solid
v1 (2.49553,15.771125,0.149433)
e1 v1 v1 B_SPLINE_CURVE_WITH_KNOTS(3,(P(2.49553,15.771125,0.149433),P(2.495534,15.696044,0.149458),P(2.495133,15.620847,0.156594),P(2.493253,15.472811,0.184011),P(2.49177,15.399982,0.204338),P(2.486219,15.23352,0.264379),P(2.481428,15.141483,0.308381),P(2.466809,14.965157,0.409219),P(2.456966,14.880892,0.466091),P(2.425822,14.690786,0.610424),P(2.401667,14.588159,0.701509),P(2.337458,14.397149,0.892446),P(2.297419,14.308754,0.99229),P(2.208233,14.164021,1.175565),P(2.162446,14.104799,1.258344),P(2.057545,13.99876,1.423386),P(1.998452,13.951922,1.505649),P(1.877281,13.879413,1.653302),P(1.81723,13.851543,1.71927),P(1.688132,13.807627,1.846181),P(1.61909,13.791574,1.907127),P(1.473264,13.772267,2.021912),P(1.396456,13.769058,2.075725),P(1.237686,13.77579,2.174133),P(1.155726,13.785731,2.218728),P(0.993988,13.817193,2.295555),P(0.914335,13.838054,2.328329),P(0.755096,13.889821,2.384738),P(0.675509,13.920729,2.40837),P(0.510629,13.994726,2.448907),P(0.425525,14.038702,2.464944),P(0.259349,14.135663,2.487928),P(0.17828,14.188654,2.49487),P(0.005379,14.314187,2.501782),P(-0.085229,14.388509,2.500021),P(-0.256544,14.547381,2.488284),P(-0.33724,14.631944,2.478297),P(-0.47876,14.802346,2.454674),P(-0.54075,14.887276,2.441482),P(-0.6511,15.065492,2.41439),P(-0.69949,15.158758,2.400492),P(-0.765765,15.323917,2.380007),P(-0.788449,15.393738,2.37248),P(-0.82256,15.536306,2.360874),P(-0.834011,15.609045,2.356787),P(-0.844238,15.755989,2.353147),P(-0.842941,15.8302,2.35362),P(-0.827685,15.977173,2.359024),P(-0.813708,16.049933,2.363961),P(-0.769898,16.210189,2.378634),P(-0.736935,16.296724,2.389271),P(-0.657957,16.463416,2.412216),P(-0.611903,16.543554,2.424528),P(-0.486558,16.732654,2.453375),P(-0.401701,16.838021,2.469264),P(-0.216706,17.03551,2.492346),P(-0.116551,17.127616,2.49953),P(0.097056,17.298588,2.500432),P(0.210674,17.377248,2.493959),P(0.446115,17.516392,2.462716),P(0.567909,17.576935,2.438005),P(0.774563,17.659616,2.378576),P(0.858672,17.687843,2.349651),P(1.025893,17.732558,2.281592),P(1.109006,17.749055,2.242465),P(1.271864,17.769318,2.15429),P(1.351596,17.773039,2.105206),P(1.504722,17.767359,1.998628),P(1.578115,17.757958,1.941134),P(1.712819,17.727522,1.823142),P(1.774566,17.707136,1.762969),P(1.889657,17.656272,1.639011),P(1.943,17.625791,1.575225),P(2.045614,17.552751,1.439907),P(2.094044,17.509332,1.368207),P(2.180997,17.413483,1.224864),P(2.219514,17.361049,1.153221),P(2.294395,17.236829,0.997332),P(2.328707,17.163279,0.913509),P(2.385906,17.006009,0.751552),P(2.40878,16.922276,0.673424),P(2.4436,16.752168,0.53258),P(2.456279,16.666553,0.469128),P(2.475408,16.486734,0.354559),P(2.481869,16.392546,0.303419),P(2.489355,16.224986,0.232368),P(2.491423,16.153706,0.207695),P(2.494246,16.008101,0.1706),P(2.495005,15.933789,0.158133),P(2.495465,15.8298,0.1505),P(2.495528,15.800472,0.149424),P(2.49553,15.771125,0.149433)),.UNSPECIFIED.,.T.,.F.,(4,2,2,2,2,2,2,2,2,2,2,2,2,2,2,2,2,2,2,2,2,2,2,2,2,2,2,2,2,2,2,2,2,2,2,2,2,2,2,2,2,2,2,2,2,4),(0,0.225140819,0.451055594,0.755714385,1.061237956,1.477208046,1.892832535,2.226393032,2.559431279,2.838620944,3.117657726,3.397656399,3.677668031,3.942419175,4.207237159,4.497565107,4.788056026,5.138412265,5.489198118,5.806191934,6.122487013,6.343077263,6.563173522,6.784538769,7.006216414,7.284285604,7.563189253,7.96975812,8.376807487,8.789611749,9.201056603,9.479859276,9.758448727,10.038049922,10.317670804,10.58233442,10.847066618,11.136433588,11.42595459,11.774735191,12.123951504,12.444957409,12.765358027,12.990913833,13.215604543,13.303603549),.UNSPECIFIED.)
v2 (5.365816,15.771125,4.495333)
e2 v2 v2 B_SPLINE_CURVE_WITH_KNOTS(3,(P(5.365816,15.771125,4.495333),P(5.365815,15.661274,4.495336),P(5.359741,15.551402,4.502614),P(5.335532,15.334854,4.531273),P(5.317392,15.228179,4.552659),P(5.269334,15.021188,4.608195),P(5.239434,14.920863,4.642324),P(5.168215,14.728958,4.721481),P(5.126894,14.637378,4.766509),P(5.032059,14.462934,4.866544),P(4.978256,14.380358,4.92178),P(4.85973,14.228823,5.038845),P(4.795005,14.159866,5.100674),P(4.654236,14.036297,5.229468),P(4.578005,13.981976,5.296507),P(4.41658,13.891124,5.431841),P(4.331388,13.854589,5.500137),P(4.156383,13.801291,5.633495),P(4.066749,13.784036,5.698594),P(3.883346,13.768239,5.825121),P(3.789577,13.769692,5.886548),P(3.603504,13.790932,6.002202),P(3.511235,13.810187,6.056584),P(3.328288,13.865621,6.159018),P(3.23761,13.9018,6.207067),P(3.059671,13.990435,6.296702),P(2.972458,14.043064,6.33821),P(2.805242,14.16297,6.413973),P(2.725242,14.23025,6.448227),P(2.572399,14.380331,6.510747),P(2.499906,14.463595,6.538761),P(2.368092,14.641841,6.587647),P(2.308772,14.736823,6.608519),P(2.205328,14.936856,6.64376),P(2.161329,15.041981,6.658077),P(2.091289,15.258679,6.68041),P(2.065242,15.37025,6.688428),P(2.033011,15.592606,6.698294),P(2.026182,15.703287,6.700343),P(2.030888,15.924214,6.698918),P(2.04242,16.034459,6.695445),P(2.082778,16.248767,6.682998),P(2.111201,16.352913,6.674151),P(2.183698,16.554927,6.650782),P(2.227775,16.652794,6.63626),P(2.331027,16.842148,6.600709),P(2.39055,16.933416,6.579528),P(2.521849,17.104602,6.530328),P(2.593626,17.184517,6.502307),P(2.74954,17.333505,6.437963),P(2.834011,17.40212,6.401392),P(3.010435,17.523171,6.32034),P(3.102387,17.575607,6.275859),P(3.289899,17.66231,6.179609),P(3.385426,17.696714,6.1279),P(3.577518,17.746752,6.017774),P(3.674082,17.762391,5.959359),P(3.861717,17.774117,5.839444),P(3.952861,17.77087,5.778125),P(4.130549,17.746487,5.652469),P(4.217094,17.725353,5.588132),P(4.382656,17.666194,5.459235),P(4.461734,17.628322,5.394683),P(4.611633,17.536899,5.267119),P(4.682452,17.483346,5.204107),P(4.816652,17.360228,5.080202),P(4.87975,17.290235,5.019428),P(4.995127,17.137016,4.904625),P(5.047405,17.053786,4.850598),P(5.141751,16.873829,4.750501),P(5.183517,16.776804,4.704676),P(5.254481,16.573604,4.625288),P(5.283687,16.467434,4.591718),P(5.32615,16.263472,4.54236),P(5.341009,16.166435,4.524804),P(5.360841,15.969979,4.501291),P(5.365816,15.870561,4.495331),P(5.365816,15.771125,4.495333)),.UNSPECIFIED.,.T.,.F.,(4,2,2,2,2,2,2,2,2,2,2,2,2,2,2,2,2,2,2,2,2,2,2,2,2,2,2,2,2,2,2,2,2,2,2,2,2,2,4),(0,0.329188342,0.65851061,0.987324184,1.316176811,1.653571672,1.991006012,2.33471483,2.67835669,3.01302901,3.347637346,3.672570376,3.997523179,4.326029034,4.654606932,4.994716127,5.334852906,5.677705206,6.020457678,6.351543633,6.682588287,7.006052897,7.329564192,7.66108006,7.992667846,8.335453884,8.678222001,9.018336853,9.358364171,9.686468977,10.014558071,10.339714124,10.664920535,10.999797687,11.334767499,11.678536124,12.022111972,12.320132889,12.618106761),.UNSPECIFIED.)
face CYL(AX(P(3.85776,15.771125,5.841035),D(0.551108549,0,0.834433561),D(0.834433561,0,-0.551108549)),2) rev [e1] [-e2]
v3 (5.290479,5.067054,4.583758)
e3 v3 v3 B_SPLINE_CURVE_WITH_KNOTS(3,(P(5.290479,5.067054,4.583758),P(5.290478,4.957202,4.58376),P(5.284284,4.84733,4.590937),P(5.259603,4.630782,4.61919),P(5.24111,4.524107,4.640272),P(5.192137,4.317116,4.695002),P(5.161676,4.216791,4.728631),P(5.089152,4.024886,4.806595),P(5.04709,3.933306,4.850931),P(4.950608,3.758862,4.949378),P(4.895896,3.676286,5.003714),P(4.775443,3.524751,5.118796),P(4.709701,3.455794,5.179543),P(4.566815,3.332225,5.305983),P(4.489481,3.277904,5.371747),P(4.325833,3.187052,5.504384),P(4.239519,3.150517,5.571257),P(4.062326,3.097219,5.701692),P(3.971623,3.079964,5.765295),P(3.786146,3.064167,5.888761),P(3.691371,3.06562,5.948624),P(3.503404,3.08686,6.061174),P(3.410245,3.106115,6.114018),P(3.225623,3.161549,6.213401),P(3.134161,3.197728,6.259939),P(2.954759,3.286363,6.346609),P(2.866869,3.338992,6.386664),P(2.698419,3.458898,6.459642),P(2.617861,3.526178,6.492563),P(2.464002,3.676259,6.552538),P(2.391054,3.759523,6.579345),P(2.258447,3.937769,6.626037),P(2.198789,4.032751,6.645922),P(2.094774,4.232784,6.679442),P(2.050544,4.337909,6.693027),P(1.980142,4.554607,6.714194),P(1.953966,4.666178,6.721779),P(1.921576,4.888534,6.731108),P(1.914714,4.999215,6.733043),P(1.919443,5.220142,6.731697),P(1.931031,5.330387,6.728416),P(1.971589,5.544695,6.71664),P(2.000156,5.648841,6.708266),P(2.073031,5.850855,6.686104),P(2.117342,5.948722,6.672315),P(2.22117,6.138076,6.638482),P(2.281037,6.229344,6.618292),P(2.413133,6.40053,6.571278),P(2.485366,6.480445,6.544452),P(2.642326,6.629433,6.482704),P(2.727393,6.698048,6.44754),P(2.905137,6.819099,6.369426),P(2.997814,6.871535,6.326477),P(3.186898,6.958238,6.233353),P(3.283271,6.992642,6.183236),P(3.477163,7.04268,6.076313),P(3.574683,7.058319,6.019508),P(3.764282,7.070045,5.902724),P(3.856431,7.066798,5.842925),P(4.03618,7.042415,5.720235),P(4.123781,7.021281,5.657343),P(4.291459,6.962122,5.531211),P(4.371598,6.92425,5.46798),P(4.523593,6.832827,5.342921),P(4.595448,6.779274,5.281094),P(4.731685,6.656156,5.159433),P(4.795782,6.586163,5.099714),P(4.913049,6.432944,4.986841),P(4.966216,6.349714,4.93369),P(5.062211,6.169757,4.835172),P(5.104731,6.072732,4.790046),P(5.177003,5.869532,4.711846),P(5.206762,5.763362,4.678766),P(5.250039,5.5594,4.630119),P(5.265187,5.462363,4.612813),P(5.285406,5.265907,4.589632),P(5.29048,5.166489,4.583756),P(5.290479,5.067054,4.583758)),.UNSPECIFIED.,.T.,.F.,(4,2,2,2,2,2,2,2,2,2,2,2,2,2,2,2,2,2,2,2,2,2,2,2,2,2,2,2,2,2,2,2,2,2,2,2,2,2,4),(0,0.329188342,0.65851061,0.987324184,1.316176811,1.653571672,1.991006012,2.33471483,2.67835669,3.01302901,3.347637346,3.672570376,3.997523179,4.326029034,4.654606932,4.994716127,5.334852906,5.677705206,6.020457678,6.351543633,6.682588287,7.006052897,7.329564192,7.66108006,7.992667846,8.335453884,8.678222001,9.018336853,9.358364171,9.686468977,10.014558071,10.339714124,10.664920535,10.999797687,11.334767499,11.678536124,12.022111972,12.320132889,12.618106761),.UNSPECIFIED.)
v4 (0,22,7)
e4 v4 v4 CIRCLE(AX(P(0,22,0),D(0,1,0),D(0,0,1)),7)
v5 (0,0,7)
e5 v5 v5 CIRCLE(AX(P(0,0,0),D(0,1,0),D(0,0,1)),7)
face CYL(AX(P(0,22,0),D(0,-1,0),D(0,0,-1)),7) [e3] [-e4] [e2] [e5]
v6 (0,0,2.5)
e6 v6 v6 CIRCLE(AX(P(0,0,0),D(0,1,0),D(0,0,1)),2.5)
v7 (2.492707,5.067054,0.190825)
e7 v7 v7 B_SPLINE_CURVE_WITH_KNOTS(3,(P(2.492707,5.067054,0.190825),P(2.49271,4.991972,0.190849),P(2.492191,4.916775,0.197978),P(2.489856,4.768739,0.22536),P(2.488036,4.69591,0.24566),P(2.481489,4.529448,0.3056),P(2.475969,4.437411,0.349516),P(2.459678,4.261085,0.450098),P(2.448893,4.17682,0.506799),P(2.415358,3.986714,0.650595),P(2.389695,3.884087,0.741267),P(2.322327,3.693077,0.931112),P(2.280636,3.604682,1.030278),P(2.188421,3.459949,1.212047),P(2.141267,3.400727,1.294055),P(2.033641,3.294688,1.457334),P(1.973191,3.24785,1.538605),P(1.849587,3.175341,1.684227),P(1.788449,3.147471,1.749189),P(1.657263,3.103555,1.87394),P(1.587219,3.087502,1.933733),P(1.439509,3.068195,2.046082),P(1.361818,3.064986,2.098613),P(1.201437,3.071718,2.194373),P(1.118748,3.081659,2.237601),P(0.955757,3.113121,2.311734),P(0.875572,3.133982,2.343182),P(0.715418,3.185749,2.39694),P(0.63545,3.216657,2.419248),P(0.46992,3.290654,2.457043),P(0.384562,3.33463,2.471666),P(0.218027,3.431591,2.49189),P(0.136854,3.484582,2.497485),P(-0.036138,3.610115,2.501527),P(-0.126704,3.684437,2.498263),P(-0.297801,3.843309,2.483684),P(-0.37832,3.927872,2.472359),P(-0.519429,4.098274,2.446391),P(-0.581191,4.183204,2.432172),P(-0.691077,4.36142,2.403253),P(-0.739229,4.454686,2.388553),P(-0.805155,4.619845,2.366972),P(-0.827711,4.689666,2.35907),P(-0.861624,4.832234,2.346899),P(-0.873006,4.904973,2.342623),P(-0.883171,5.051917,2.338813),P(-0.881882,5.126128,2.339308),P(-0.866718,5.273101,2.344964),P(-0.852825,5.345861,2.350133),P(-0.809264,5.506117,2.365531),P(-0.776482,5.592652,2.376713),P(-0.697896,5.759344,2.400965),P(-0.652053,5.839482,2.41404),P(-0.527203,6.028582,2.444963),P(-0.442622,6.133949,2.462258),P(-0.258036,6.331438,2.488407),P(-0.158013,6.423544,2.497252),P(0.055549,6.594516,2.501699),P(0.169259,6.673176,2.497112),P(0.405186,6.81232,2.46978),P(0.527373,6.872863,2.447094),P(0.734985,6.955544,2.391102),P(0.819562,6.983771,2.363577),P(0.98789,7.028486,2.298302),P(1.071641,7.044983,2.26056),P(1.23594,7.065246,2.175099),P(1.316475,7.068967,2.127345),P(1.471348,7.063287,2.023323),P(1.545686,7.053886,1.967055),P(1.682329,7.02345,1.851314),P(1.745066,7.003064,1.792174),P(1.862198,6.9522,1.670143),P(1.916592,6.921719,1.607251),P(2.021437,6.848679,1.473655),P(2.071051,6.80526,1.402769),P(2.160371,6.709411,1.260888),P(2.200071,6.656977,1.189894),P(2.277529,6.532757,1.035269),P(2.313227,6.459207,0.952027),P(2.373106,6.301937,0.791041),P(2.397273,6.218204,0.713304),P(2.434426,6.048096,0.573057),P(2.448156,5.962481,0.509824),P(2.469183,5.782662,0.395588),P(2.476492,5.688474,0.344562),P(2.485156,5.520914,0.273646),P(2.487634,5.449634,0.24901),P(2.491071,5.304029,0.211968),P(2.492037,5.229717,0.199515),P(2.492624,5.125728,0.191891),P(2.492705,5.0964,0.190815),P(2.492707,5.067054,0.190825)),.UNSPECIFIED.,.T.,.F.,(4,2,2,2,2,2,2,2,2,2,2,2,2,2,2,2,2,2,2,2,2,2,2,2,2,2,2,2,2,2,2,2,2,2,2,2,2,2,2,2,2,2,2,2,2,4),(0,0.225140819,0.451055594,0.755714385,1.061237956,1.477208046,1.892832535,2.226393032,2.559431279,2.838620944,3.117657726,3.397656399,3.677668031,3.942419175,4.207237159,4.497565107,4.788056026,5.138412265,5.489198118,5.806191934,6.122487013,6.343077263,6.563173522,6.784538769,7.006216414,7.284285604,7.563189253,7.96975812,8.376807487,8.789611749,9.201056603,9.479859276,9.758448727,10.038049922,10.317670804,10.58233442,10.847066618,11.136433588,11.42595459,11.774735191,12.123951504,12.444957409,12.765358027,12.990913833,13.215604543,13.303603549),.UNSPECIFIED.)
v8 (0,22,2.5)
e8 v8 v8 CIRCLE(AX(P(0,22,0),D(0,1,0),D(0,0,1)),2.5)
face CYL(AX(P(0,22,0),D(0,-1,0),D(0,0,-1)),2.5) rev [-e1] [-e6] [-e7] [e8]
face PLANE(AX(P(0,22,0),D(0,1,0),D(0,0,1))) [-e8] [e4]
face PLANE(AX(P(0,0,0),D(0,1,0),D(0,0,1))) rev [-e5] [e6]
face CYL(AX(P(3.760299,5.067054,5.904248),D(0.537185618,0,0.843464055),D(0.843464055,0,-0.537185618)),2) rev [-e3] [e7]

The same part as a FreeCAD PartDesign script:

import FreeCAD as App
import Part
import Sketcher
from FreeCAD import Vector
Q = App.Units.Quantity

doc = App.newDocument("Part")
params = doc.addObject("Spreadsheet::Sheet", "Params")
for row, (alias, value) in enumerate([
    ("sketch1_diameter", "14 mm"),
    ("sketch1_diameter2", "5 mm"),
    ("pad1_length", "22 mm"),
    ("sketch2_diameter", "4 mm"),
    ("pocket1_length", "5.5 mm"),
    ("sketch3_diameter", "4 mm"),
    ("pocket2_length", "5.499997 mm"),
], start=1):
    params.set(f"A{row}", alias)
    params.set(f"B{row}", "=" + value)
    params.setAlias(f"B{row}", alias)

body = doc.addObject("PartDesign::Body", "Body")

sketch1 = body.newObject("Sketcher::SketchObject", "Sketch")
sketch1.AttachmentSupport = (doc.getObject("XZ_Plane"), [""])
sketch1.MapMode = "FlatFace"
sketch1.addGeometry([
    Part.Circle(Vector(0, 0, 0), Vector(0, 0, 1), 7),
    Part.Circle(Vector(0, 0, 0), Vector(0, 0, 1), 2.5),
], False)
sketch1.addConstraint([
    Sketcher.Constraint("Coincident", 0, 3, -1, 1),
    Sketcher.Constraint("Coincident", 1, 3, -1, 1),
    Sketcher.Constraint("Diameter", 0, Q("14 mm")),
    Sketcher.Constraint("Diameter", 1, Q("5 mm")),
])
sketch1.setExpression("Constraints[2]", "Params.sketch1_diameter")
sketch1.setExpression("Constraints[3]", "Params.sketch1_diameter2")
pad1 = body.newObject("PartDesign::Pad", "Pad")
pad1.Profile = sketch1
pad1.setExpression("Length", "Params.pad1_length")
pad1.Reversed = True

sketch2 = body.newObject("Sketcher::SketchObject", "Sketch001")
sketch2.Placement = App.Placement(Vector(3.85776, 15.771125, 5.841035), App.Rotation(Vector(0.834433561, 0, -0.551108549), Vector(0, 1.000000001, 0), Vector(0.551108549, 0, 0.834433561), "ZXY"))
sketch2.addGeometry(Part.Circle(Vector(0, 0, 0), Vector(0, 0, 1), 2), False)
sketch2.addConstraint([
    Sketcher.Constraint("Coincident", 0, 3, -1, 1),
    Sketcher.Constraint("Diameter", 0, Q("4 mm")),
])
sketch2.setExpression("Constraints[1]", "Params.sketch2_diameter")
pocket1 = body.newObject("PartDesign::Pocket", "Pocket")
pocket1.Profile = sketch2
pocket1.setExpression("Length", "Params.pocket1_length")

sketch3 = body.newObject("Sketcher::SketchObject", "Sketch002")
sketch3.Placement = App.Placement(Vector(3.760299, 5.067054, 5.904248), App.Rotation(Vector(0.843463866, 0, -0.537185915), Vector(0, 1.000000001, 0), Vector(0.537185915, 0, 0.843463866), "ZXY"))
sketch3.addGeometry(Part.Circle(Vector(0, 0, 0), Vector(0, 0, 1), 2), False)
sketch3.addConstraint([
    Sketcher.Constraint("Coincident", 0, 3, -1, 1),
    Sketcher.Constraint("Diameter", 0, Q("4 mm")),
])
sketch3.setExpression("Constraints[1]", "Params.sketch3_diameter")
pocket2 = body.newObject("PartDesign::Pocket", "Pocket001")
pocket2.Profile = sketch3
pocket2.setExpression("Length", "Params.pocket2_length")

doc.recompute()
